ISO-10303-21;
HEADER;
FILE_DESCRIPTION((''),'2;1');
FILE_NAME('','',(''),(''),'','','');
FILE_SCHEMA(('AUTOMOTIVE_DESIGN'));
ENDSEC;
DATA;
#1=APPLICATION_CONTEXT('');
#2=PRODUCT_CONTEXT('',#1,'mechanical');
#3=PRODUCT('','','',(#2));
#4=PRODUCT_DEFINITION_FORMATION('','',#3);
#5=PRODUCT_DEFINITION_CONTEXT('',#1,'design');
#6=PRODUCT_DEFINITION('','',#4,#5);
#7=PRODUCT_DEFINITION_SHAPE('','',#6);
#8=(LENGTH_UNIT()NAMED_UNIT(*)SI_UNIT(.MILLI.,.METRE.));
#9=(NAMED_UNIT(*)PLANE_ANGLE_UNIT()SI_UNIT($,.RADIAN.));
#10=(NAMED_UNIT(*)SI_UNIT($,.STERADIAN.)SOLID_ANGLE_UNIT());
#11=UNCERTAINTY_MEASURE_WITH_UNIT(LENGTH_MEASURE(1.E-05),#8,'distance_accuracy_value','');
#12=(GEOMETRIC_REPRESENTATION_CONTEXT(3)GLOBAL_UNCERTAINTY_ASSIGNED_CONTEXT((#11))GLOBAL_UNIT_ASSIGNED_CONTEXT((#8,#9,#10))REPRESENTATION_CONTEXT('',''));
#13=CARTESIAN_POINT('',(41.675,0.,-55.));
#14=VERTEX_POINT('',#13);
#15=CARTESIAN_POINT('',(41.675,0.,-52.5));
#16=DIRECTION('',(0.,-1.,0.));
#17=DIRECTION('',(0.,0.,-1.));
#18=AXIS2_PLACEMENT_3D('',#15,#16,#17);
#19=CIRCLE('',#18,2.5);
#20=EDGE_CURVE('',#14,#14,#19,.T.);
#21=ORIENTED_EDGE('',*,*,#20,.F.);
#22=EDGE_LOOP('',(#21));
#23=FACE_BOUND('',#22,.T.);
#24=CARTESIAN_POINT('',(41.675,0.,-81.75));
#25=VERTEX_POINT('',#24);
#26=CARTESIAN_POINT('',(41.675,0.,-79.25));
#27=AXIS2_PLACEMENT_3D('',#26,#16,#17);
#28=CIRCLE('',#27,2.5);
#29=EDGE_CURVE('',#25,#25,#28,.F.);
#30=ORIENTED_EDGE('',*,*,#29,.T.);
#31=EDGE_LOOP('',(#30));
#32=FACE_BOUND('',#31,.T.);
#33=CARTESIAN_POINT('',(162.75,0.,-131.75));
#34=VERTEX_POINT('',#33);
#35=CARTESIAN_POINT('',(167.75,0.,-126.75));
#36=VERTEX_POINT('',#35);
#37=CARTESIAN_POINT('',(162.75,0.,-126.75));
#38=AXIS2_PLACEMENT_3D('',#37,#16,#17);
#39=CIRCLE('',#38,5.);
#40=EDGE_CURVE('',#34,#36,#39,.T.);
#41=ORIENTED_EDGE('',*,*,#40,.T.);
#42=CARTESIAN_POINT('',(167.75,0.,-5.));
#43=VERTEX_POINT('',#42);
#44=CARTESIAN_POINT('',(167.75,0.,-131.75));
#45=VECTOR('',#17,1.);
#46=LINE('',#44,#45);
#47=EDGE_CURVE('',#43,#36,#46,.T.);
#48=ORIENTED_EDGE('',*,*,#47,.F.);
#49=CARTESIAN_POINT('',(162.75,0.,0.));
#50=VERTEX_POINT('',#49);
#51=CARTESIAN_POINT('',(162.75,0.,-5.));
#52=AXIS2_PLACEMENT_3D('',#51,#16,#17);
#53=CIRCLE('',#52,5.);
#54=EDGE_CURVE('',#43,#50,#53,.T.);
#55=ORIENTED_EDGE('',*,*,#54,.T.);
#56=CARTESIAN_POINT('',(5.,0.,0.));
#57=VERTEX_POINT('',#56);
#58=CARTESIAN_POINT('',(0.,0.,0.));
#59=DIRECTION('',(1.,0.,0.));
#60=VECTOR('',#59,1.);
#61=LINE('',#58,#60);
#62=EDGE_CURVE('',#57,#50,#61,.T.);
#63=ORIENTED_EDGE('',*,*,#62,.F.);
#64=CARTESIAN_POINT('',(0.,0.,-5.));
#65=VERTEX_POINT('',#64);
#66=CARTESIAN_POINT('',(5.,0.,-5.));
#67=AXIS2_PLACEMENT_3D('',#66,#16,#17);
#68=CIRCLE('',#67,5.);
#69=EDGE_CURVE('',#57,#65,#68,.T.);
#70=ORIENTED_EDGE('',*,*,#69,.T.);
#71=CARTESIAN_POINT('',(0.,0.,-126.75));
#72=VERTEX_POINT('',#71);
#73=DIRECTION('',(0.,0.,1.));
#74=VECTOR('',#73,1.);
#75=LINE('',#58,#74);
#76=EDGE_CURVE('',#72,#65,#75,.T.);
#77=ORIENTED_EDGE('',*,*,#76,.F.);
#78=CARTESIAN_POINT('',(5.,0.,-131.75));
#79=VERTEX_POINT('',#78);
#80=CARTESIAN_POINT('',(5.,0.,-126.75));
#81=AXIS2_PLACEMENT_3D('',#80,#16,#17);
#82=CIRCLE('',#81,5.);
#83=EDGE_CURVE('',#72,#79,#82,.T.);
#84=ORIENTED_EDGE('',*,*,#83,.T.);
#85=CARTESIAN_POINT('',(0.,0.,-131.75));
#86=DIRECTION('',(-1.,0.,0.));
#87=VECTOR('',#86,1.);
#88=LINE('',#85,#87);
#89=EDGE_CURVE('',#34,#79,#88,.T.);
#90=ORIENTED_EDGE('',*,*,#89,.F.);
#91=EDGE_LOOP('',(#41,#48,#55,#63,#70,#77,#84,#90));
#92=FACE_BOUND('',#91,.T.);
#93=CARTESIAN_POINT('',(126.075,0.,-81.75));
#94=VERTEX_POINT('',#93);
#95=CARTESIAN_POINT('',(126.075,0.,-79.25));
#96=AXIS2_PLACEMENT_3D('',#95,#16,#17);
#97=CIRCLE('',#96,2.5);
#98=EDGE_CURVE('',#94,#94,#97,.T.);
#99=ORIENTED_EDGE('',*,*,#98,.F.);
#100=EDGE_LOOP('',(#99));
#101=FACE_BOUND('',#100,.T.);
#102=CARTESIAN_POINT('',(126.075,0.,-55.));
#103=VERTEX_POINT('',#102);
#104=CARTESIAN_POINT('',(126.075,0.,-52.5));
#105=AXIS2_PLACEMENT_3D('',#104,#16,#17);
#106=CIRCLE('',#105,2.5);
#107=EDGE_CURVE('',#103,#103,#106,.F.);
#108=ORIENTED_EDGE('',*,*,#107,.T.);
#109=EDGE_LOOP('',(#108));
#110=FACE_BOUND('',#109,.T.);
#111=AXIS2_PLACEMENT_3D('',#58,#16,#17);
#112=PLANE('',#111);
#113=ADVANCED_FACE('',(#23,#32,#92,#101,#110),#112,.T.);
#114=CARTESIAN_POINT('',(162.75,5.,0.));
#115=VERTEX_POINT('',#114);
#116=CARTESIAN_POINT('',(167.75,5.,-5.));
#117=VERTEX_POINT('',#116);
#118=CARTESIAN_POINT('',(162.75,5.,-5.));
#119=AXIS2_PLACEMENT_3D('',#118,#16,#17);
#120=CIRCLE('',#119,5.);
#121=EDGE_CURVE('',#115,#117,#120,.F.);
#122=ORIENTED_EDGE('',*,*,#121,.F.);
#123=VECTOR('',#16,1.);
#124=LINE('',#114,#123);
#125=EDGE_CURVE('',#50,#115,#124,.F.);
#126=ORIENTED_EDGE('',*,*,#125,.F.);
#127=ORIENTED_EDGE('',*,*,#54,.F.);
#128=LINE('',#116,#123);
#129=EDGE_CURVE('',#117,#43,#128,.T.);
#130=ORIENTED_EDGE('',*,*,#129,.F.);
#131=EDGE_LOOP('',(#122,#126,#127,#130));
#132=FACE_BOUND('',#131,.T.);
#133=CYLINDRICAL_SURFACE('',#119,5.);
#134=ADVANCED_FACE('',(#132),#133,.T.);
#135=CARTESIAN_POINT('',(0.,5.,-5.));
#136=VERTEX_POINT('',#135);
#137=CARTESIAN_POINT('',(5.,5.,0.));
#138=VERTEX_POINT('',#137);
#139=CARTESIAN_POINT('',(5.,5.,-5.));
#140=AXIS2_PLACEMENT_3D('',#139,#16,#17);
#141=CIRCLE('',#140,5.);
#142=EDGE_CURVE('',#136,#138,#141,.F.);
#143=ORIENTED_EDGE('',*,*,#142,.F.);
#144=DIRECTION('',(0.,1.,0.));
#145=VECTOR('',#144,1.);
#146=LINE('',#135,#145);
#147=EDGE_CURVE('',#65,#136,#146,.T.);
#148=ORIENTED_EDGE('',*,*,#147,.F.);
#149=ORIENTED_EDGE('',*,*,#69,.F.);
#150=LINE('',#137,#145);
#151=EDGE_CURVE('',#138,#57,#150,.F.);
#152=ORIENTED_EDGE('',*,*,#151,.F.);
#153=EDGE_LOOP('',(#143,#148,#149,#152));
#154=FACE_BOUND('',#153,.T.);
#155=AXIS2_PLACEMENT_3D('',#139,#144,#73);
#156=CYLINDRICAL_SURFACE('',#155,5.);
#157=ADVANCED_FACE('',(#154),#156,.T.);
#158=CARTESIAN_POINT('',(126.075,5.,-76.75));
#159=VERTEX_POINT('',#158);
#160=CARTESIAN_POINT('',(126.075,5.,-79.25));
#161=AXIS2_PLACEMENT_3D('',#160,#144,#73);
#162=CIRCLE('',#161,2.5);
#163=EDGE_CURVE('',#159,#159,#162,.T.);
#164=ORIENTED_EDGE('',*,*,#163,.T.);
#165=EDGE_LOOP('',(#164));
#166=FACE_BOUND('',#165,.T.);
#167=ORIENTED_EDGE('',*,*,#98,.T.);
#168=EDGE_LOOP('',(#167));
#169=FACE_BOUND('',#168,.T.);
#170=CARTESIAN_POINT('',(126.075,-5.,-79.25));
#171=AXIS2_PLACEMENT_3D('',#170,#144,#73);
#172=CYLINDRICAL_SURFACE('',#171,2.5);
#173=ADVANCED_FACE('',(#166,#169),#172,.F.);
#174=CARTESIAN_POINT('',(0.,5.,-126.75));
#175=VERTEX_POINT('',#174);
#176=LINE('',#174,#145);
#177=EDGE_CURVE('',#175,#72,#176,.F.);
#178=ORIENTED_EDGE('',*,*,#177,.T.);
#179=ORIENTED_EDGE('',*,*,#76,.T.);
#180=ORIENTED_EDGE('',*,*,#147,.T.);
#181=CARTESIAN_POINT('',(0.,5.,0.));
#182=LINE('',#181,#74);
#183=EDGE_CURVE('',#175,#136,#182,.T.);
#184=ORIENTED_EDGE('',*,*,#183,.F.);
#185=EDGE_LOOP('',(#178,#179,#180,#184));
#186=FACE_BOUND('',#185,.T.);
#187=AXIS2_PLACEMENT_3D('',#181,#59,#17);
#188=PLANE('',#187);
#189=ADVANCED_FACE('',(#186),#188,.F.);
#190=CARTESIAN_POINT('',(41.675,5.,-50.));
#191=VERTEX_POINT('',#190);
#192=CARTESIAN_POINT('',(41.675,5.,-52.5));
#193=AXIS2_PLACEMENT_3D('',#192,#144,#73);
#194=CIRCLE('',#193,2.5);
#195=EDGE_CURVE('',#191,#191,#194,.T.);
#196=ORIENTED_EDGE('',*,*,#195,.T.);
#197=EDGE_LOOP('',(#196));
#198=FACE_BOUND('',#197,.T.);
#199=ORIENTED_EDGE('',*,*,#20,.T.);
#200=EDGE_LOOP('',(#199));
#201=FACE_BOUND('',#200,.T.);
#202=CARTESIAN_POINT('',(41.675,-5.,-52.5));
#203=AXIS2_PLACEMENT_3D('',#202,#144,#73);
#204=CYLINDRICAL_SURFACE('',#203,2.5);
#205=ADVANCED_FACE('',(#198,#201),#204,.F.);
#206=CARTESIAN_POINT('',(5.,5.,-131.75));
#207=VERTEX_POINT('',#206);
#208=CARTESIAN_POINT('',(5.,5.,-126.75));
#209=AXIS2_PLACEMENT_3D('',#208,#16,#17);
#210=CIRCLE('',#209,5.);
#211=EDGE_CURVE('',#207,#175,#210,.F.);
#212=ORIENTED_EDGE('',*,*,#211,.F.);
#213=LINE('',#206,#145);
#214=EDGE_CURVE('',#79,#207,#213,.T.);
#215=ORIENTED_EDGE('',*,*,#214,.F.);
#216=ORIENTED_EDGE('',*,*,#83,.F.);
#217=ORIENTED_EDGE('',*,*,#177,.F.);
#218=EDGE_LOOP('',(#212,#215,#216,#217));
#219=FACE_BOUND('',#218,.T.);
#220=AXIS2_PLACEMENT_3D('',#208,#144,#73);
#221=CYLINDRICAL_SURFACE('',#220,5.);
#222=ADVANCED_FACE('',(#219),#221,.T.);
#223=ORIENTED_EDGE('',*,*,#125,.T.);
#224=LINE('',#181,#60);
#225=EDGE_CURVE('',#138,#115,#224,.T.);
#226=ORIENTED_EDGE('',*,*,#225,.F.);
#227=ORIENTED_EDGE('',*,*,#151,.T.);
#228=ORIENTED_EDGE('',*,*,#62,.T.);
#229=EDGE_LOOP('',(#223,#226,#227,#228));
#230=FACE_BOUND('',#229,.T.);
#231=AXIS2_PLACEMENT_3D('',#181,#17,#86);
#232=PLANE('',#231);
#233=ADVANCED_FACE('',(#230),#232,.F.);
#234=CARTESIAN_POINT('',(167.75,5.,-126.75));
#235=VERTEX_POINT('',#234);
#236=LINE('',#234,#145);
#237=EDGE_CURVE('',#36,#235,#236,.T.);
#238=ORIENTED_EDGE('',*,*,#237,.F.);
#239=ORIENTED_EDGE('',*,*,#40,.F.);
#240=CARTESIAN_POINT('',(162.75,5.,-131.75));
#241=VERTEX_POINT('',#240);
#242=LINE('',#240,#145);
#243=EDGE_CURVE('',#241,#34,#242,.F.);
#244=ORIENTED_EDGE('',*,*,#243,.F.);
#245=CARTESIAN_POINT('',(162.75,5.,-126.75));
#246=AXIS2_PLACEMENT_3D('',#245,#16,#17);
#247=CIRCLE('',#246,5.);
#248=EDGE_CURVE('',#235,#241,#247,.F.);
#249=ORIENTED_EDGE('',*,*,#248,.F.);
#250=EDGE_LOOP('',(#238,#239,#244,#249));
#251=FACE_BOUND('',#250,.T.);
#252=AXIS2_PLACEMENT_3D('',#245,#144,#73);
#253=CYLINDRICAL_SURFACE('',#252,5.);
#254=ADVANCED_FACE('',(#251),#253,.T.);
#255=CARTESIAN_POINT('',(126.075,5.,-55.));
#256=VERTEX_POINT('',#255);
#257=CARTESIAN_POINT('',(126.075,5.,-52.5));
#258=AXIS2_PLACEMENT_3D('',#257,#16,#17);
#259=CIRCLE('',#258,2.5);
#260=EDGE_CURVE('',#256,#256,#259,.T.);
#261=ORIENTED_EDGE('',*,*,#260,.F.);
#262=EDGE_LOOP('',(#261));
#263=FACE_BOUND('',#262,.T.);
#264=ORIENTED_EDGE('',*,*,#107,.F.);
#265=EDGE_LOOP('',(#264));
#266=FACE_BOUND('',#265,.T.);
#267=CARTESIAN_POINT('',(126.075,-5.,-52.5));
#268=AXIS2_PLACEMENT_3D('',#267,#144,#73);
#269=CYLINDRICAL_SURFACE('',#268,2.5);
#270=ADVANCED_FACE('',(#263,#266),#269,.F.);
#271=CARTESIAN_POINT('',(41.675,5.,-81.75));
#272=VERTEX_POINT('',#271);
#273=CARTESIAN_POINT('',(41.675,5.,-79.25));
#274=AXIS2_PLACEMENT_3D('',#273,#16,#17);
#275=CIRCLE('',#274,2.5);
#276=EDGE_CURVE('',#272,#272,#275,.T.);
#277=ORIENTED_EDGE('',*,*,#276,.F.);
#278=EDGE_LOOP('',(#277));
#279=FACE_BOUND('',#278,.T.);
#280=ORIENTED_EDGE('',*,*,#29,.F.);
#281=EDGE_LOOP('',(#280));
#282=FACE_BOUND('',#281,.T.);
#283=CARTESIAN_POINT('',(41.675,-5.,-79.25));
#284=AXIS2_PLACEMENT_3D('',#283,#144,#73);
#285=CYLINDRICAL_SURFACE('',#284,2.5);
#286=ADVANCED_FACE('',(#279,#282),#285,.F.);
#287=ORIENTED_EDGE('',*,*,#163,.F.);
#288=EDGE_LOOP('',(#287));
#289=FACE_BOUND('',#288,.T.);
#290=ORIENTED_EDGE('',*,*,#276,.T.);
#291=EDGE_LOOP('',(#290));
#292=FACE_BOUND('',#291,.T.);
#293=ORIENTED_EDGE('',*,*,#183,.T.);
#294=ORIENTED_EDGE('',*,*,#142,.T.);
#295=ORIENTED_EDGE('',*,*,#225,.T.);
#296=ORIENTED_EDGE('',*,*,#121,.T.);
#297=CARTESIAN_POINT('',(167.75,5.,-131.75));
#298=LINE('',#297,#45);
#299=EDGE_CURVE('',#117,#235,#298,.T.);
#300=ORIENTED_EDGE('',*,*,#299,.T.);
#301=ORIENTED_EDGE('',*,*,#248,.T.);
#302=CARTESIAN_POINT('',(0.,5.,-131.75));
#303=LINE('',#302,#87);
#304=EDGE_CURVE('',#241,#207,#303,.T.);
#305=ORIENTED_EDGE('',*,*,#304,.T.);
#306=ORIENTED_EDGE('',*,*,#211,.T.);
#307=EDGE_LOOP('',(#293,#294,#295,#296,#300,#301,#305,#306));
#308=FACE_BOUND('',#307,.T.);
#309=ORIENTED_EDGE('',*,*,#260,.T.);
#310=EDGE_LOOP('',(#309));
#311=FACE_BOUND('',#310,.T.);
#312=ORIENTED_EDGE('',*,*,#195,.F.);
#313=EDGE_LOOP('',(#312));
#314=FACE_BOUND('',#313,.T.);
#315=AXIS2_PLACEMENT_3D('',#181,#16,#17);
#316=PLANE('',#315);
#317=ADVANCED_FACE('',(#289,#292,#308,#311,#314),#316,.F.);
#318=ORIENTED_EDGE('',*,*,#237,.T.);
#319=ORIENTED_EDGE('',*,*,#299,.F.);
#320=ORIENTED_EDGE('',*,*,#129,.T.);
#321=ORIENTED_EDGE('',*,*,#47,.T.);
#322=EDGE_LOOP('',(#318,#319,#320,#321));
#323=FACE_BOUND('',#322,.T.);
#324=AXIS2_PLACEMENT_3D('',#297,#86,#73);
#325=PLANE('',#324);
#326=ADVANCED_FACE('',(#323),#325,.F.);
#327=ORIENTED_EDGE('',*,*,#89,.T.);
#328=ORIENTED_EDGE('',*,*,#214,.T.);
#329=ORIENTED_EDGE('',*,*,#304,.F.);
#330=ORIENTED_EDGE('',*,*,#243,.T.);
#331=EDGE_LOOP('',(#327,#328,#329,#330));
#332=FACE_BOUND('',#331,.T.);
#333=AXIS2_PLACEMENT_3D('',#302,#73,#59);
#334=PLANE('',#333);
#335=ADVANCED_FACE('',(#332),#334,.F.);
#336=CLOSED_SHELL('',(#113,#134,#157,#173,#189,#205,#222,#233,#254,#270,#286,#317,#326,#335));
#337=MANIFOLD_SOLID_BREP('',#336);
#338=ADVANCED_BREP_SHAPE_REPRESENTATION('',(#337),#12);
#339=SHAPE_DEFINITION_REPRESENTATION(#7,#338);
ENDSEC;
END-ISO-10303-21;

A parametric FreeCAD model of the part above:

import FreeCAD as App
import Part
import Sketcher


def edges_at(feature, points):
    """Names of the edges that pass closest to the given points."""
    edges = feature.Shape.Edges
    near = lambda p: min(range(len(edges)), key=lambda i: edges[i].distToShape(Part.Vertex(*p))[0])
    return sorted({f"Edge{near(p) + 1}" for p in points})


def add_polygon(sketch, points):
    """Adds a closed chain of lines whose ends are joined by coincident constraints."""
    first, n = sketch.GeometryCount, len(points)
    for a, b in zip(points, points[1:] + points[:1]):
        sketch.addGeometry(Part.LineSegment(App.Vector(*a, 0), App.Vector(*b, 0)), False)
    for i in range(n):
        sketch.addConstraint(Sketcher.Constraint("Coincident", first + i, 2, first + (i + 1) % n, 1))

doc = App.newDocument("Part")
body = doc.addObject("PartDesign::Body", "Body")

# Sketch on XZ plane
sketch1 = doc.addObject("Sketcher::SketchObject", "Sketch")
body.addObject(sketch1)
sketch1.AttachmentSupport = (doc.XZ_Plane, [""])
sketch1.MapMode = "FlatFace"
add_polygon(sketch1, [(0, -132), (0, 0), (168, 0), (168, -132)])  # lines 0-3
sketch1.addConstraint(Sketcher.Constraint("Vertical", 0))
sketch1.addConstraint(Sketcher.Constraint("Horizontal", 1))
sketch1.addConstraint(Sketcher.Constraint("Vertical", 2))
sketch1.addConstraint(Sketcher.Constraint("Horizontal", 3))
sketch1.addConstraint(Sketcher.Constraint("Coincident", 0, 2, -1, 1))
sketch1.addConstraint(Sketcher.Constraint("DistanceX", 1, 1, 1, 2, 167.75))
sketch1.addConstraint(Sketcher.Constraint("DistanceY", 0, 1, 0, 2, 131.75))
pad1 = doc.addObject("PartDesign::Pad", "Pad")
body.addObject(pad1)
pad1.Profile = sketch1
pad1.Length = 5
pad1.Reversed = True
doc.recompute()

fillet = doc.addObject("PartDesign::Fillet", "Fillet")
body.addObject(fillet)
fillet.Base = (pad1, edges_at(pad1, [(0, 2.5, 0)]))
fillet.Radius = 5
doc.recompute()

fillet2 = doc.addObject("PartDesign::Fillet", "Fillet001")
body.addObject(fillet2)
fillet2.Base = (fillet, edges_at(fillet, [(0, 2.5, -131.75)]))
fillet2.Radius = 5
doc.recompute()

fillet3 = doc.addObject("PartDesign::Fillet", "Fillet002")
body.addObject(fillet3)
fillet3.Base = (fillet2, edges_at(fillet2, [(167.75, 2.5, -131.75)]))
fillet3.Radius = 5
doc.recompute()

fillet4 = doc.addObject("PartDesign::Fillet", "Fillet003")
body.addObject(fillet4)
fillet4.Base = (fillet3, edges_at(fillet3, [(167.75, 2.5, 0)]))
fillet4.Radius = 5

# Sketch on XZ plane
sketch2 = doc.addObject("Sketcher::SketchObject", "Sketch001")
body.addObject(sketch2)
sketch2.AttachmentSupport = (doc.XZ_Plane, [""])
sketch2.MapMode = "FlatFace"
sketch2.AttachmentOffset = App.Placement(App.Vector(0, 0, -5), App.Rotation())
sketch2.addGeometry(Part.Circle(App.Vector(126.1, -79.2, 0), App.Vector(0, 0, 1), 2.5), False)
sketch2.addGeometry(Part.Circle(App.Vector(126.1, -52.5, 0), App.Vector(0, 0, 1), 2.5), False)
sketch2.addGeometry(Part.Circle(App.Vector(41.7, -79.2, 0), App.Vector(0, 0, 1), 2.5), False)
sketch2.addGeometry(Part.Circle(App.Vector(41.7, -52.5, 0), App.Vector(0, 0, 1), 2.5), False)
sketch2.addConstraint(Sketcher.Constraint("Equal", 0, 1))
sketch2.addConstraint(Sketcher.Constraint("Equal", 1, 2))
sketch2.addConstraint(Sketcher.Constraint("Equal", 2, 3))
sketch2.addConstraint(Sketcher.Constraint("Horizontal", 0, 3, 2, 3))
sketch2.addConstraint(Sketcher.Constraint("Horizontal", 1, 3, 3, 3))
sketch2.addConstraint(Sketcher.Constraint("Vertical", 0, 3, 1, 3))
sketch2.addConstraint(Sketcher.Constraint("Vertical", 2, 3, 3, 3))
sketch2.addConstraint(Sketcher.Constraint("Diameter", 0, 5.0))
sketch2.addConstraint(Sketcher.Constraint("DistanceY", 1, 3, -1, 1, 52.5))
sketch2.addConstraint(Sketcher.Constraint("DistanceX", 2, 3, 0, 3, 84.4))
sketch2.addConstraint(Sketcher.Constraint("DistanceY", 0, 3, -1, 1, 79.25))
sketch2.addConstraint(Sketcher.Constraint("DistanceX", -1, 1, 0, 3, 126.075))
pocket1 = doc.addObject("PartDesign::Pocket", "Pocket")
body.addObject(pocket1)
pocket1.Profile = sketch2
pocket1.Length = 10
pocket1.Reversed = True

doc.recompute()
